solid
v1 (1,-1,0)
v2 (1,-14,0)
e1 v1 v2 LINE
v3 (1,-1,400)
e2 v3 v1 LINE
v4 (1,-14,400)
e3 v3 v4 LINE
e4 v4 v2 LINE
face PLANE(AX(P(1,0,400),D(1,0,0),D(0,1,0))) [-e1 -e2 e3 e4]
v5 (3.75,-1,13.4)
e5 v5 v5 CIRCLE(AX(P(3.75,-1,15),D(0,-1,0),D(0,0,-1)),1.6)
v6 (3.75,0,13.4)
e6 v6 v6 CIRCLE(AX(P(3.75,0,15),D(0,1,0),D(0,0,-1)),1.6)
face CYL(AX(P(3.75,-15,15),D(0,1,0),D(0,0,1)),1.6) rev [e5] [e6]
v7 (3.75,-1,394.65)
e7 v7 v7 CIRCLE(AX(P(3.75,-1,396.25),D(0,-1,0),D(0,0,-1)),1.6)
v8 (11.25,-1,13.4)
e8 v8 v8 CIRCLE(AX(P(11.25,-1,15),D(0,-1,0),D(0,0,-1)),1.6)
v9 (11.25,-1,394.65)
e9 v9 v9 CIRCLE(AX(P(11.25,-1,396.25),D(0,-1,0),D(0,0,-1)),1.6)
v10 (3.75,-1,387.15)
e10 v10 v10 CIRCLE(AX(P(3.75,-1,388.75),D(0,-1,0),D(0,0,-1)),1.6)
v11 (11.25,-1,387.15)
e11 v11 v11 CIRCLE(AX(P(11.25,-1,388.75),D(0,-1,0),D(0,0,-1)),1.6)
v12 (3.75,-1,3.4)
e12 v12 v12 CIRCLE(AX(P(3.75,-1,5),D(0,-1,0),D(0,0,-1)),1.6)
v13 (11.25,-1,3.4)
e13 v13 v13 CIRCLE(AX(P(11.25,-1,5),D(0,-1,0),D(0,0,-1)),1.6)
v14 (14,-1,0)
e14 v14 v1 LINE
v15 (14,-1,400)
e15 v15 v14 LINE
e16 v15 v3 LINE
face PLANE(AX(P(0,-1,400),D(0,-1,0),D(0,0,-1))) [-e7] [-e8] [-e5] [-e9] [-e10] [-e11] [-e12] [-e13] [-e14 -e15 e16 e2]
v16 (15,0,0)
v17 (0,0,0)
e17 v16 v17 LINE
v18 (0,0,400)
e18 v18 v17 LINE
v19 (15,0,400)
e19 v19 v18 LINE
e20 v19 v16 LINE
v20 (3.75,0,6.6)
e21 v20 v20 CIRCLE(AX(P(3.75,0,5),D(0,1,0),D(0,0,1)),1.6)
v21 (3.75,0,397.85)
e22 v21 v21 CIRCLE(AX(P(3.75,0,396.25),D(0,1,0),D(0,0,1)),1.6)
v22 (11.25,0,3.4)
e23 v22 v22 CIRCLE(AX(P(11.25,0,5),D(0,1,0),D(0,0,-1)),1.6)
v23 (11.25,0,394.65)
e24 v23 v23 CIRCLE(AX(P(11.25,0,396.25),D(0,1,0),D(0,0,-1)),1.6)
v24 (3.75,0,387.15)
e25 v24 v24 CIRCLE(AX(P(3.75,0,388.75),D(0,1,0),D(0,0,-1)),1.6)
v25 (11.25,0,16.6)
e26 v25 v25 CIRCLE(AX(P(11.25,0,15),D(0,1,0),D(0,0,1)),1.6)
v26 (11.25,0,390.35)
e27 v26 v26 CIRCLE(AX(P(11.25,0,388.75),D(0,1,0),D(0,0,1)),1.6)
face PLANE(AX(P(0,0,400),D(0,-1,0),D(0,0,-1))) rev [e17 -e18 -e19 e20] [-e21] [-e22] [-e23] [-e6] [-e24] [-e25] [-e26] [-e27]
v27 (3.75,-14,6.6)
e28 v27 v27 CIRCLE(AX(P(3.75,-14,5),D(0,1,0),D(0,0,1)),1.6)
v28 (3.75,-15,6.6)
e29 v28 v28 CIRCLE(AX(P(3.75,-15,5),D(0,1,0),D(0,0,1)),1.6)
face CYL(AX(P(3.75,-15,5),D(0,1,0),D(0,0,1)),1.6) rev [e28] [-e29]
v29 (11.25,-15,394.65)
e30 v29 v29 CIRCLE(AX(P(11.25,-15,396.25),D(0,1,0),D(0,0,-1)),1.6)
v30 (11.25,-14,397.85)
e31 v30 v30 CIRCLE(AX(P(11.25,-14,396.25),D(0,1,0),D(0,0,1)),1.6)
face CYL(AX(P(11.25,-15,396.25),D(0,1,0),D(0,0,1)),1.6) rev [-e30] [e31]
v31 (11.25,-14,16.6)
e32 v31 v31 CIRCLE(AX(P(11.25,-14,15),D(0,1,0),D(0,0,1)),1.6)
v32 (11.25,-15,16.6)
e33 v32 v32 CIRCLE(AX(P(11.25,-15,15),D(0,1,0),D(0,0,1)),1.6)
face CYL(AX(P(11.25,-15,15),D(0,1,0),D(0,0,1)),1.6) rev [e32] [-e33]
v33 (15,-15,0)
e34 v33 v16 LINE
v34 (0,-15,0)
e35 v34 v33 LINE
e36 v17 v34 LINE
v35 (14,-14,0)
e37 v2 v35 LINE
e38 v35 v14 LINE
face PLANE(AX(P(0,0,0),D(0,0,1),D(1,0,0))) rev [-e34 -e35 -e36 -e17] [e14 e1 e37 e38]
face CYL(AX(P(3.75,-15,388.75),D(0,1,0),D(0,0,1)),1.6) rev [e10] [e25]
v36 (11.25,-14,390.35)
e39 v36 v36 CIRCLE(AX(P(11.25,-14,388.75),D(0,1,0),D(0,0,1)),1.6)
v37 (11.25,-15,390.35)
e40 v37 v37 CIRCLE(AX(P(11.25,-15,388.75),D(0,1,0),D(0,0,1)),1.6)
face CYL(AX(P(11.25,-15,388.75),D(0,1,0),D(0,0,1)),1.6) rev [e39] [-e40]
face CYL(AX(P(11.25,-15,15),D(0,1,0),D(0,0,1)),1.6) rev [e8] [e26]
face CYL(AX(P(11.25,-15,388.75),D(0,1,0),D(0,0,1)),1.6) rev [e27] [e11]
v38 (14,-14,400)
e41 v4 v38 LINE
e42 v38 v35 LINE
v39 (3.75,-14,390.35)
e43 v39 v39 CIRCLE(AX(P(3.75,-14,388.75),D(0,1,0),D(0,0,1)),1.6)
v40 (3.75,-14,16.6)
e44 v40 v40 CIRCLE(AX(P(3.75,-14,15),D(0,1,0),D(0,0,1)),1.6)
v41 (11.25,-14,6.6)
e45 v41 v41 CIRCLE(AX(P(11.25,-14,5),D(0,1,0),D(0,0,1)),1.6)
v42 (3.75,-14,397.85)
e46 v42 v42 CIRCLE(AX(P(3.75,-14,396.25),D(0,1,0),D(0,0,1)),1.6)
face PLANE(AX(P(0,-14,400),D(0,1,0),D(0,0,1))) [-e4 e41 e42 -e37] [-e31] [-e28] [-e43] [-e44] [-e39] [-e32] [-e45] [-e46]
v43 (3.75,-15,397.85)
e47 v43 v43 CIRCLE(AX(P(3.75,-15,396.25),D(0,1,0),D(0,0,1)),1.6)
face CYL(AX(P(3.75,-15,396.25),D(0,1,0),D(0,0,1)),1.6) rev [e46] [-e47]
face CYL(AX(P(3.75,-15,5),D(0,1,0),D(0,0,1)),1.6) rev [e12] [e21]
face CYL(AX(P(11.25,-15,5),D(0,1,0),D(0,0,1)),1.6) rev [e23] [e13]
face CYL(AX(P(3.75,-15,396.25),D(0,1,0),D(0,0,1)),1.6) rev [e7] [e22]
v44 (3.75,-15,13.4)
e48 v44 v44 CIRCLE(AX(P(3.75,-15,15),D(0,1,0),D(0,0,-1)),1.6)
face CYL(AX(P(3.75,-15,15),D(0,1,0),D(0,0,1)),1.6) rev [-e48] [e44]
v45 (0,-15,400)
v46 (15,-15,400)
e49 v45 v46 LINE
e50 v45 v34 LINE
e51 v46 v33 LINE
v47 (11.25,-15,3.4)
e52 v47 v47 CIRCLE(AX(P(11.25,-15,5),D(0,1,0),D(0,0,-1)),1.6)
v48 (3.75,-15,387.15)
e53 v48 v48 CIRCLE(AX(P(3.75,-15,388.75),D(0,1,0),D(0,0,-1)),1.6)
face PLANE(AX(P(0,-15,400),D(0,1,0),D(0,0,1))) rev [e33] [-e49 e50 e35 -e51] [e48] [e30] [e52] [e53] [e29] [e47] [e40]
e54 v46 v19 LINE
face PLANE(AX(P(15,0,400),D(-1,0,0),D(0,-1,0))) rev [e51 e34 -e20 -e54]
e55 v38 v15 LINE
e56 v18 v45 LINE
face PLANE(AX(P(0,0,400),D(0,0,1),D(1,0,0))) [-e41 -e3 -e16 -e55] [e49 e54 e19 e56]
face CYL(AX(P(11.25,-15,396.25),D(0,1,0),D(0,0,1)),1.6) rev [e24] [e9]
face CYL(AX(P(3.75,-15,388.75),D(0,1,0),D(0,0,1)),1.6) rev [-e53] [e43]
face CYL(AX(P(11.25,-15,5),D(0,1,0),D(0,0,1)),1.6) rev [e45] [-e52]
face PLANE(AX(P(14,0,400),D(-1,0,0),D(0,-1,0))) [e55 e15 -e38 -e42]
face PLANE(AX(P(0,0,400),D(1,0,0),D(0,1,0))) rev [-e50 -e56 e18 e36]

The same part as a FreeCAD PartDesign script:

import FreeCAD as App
import Part
import Sketcher
from FreeCAD import Vector

doc = App.newDocument("Part")
body = doc.addObject("PartDesign::Body", "Body")

# Sketch on XY plane
sketch1 = body.newObject("Sketcher::SketchObject", "Sketch")
sketch1.AttachmentSupport = (doc.getObject("XY_Plane"), [""])
sketch1.MapMode = "FlatFace"
sketch1.addGeometry([
    Part.LineSegment(Vector(0, 0, 0), Vector(0, -15, 0)),  # 0
    Part.LineSegment(Vector(0, -15, 0), Vector(15, -15, 0)),  # 1
    Part.LineSegment(Vector(15, -15, 0), Vector(15, 0, 0)),  # 2
    Part.LineSegment(Vector(15, 0, 0), Vector(0, 0, 0)),  # 3
    Part.LineSegment(Vector(14, -14, 0), Vector(1, -14, 0)),  # 4
    Part.LineSegment(Vector(1, -14, 0), Vector(1, -1, 0)),  # 5
    Part.LineSegment(Vector(1, -1, 0), Vector(14, -1, 0)),  # 6
    Part.LineSegment(Vector(14, -1, 0), Vector(14, -14, 0)),  # 7
], False)
sketch1.addConstraint([
    Sketcher.Constraint("Coincident", 0, 2, 1, 1),
    Sketcher.Constraint("Coincident", 1, 2, 2, 1),
    Sketcher.Constraint("Coincident", 2, 2, 3, 1),
    Sketcher.Constraint("Coincident", 3, 2, 0, 1),
    Sketcher.Constraint("Coincident", 4, 2, 5, 1),
    Sketcher.Constraint("Coincident", 5, 2, 6, 1),
    Sketcher.Constraint("Coincident", 6, 2, 7, 1),
    Sketcher.Constraint("Coincident", 7, 2, 4, 1),
    Sketcher.Constraint("Vertical", 0),
    Sketcher.Constraint("Horizontal", 1),
    Sketcher.Constraint("Vertical", 2),
    Sketcher.Constraint("Horizontal", 3),
    Sketcher.Constraint("Horizontal", 4),
    Sketcher.Constraint("Vertical", 5),
    Sketcher.Constraint("Horizontal", 6),
    Sketcher.Constraint("Vertical", 7),
    Sketcher.Constraint("Coincident", 3, 2, -1, 1),
    Sketcher.Constraint("Equal", 3, 0),
    Sketcher.Constraint("Equal", 6, 5),
    Sketcher.Constraint("DistanceX", 1, 1, 1, 2, 15.0),
    Sketcher.Constraint("DistanceX", 4, 2, 4, 1, 13.0),
    Sketcher.Constraint("DistanceX", -1, 1, 4, 2, 1.0),
    Sketcher.Constraint("DistanceY", 4, 2, -1, 1, 14.0),
])
pad1 = body.newObject("PartDesign::Pad", "Pad")
pad1.Profile = sketch1
pad1.Length = 400

# Sketch on XZ plane
sketch2 = body.newObject("Sketcher::SketchObject", "Sketch001")
sketch2.AttachmentSupport = (doc.getObject("XZ_Plane"), [""])
sketch2.MapMode = "FlatFace"
sketch2.addGeometry([
    Part.Circle(Vector(3.8, 5, 0), Vector(0, 0, 1), 1.6),  # 0
    Part.Circle(Vector(11.2, 5, 0), Vector(0, 0, 1), 1.6),  # 1
    Part.Circle(Vector(11.2, 15, 0), Vector(0, 0, 1), 1.6),  # 2
    Part.Circle(Vector(3.8, 15, 0), Vector(0, 0, 1), 1.6),  # 3
    Part.Circle(Vector(3.8, 396.2, 0), Vector(0, 0, 1), 1.6),  # 4
    Part.Circle(Vector(11.2, 396.2, 0), Vector(0, 0, 1), 1.6),  # 5
    Part.Circle(Vector(11.2, 388.8, 0), Vector(0, 0, 1), 1.6),  # 6
    Part.Circle(Vector(3.8, 388.8, 0), Vector(0, 0, 1), 1.6),  # 7
], False)
sketch2.addConstraint([
    Sketcher.Constraint("Equal", 0, 1),
    Sketcher.Constraint("Equal", 1, 2),
    Sketcher.Constraint("Equal", 2, 3),
    Sketcher.Constraint("Equal", 3, 4),
    Sketcher.Constraint("Equal", 4, 5),
    Sketcher.Constraint("Equal", 5, 6),
    Sketcher.Constraint("Equal", 6, 7),
    Sketcher.Constraint("Horizontal", 0, 3, 1, 3),
    Sketcher.Constraint("Horizontal", 2, 3, 3, 3),
    Sketcher.Constraint("Horizontal", 4, 3, 5, 3),
    Sketcher.Constraint("Horizontal", 6, 3, 7, 3),
    Sketcher.Constraint("Vertical", 1, 3, 2, 3),
    Sketcher.Constraint("Vertical", 0, 3, 3, 3),
    Sketcher.Constraint("Vertical", 3, 3, 4, 3),
    Sketcher.Constraint("Vertical", 2, 3, 5, 3),
    Sketcher.Constraint("Vertical", 5, 3, 6, 3),
    Sketcher.Constraint("Vertical", 4, 3, 7, 3),
    Sketcher.Constraint("Diameter", 0, 3.2),
    Sketcher.Constraint("DistanceY", -1, 1, 0, 3, 5.0),
    Sketcher.Constraint("DistanceY", -1, 1, 2, 3, 15.0),
    Sketcher.Constraint("DistanceX", 0, 3, 1, 3, 7.5),
    Sketcher.Constraint("DistanceY", 6, 3, 5, 3, 7.5),
    Sketcher.Constraint("DistanceX", -1, 1, 0, 3, 3.75),
    Sketcher.Constraint("DistanceY", -1, 1, 4, 3, 396.25),
])
pocket1 = body.newObject("PartDesign::Pocket", "Pocket")
pocket1.Profile = sketch2
pocket1.Type = "ThroughAll"
pocket1.Reversed = True

doc.recompute()
